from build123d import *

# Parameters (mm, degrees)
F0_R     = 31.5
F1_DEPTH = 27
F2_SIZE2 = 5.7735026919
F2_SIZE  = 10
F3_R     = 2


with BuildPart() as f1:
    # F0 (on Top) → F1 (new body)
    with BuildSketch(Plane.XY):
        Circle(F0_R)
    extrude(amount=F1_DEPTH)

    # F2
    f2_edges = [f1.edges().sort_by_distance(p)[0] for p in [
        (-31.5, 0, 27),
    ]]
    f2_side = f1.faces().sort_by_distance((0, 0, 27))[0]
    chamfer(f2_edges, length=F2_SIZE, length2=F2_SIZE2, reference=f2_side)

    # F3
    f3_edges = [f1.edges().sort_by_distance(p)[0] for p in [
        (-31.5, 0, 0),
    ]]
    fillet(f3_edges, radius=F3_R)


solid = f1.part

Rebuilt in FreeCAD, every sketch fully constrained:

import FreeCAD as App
import Part
import Sketcher
Q = App.Units.Quantity


def edges_at(feature, points):
    """Names of the edges that pass closest to the given points."""
    edges = feature.Shape.Edges
    near = lambda p: min(range(len(edges)), key=lambda i: edges[i].distToShape(Part.Vertex(*p))[0])
    return sorted({f"Edge{near(p) + 1}" for p in points})

doc = App.newDocument("Part")
body = doc.addObject("PartDesign::Body", "Body")

# Sketch on XY plane
sketch1 = body.newObject("Sketcher::SketchObject", "Sketch")
sketch1.AttachmentSupport = (doc.getObject("XY_Plane"), [""])
sketch1.MapMode = "FlatFace"
sketch1.addGeometry(Part.Circle(App.Vector(0, 0, 0), App.Vector(0, 0, 1), 32), False)
sketch1.addConstraint(Sketcher.Constraint("Coincident", 0, 3, -1, 1))
sketch1.addConstraint(Sketcher.Constraint("Diameter", 0, Q("63 mm")))
pad1 = body.newObject("PartDesign::Pad", "Pad")
pad1.Profile = sketch1
pad1.Length = 27
doc.recompute()

chamfer = body.newObject("PartDesign::Chamfer", "Chamfer")
chamfer.Base = (pad1, edges_at(pad1, [(-31.5, 0, 27)]))
chamfer.ChamferType = "Two distances"
chamfer.Size = 10
chamfer.Size2 = 5.773503
chamfer.FlipDirection = True
doc.recompute()

fillet = body.newObject("PartDesign::Fillet", "Fillet")
fillet.Base = (chamfer, edges_at(chamfer, [(-31.5, 0, 0)]))
fillet.Radius = 2

doc.recompute()
